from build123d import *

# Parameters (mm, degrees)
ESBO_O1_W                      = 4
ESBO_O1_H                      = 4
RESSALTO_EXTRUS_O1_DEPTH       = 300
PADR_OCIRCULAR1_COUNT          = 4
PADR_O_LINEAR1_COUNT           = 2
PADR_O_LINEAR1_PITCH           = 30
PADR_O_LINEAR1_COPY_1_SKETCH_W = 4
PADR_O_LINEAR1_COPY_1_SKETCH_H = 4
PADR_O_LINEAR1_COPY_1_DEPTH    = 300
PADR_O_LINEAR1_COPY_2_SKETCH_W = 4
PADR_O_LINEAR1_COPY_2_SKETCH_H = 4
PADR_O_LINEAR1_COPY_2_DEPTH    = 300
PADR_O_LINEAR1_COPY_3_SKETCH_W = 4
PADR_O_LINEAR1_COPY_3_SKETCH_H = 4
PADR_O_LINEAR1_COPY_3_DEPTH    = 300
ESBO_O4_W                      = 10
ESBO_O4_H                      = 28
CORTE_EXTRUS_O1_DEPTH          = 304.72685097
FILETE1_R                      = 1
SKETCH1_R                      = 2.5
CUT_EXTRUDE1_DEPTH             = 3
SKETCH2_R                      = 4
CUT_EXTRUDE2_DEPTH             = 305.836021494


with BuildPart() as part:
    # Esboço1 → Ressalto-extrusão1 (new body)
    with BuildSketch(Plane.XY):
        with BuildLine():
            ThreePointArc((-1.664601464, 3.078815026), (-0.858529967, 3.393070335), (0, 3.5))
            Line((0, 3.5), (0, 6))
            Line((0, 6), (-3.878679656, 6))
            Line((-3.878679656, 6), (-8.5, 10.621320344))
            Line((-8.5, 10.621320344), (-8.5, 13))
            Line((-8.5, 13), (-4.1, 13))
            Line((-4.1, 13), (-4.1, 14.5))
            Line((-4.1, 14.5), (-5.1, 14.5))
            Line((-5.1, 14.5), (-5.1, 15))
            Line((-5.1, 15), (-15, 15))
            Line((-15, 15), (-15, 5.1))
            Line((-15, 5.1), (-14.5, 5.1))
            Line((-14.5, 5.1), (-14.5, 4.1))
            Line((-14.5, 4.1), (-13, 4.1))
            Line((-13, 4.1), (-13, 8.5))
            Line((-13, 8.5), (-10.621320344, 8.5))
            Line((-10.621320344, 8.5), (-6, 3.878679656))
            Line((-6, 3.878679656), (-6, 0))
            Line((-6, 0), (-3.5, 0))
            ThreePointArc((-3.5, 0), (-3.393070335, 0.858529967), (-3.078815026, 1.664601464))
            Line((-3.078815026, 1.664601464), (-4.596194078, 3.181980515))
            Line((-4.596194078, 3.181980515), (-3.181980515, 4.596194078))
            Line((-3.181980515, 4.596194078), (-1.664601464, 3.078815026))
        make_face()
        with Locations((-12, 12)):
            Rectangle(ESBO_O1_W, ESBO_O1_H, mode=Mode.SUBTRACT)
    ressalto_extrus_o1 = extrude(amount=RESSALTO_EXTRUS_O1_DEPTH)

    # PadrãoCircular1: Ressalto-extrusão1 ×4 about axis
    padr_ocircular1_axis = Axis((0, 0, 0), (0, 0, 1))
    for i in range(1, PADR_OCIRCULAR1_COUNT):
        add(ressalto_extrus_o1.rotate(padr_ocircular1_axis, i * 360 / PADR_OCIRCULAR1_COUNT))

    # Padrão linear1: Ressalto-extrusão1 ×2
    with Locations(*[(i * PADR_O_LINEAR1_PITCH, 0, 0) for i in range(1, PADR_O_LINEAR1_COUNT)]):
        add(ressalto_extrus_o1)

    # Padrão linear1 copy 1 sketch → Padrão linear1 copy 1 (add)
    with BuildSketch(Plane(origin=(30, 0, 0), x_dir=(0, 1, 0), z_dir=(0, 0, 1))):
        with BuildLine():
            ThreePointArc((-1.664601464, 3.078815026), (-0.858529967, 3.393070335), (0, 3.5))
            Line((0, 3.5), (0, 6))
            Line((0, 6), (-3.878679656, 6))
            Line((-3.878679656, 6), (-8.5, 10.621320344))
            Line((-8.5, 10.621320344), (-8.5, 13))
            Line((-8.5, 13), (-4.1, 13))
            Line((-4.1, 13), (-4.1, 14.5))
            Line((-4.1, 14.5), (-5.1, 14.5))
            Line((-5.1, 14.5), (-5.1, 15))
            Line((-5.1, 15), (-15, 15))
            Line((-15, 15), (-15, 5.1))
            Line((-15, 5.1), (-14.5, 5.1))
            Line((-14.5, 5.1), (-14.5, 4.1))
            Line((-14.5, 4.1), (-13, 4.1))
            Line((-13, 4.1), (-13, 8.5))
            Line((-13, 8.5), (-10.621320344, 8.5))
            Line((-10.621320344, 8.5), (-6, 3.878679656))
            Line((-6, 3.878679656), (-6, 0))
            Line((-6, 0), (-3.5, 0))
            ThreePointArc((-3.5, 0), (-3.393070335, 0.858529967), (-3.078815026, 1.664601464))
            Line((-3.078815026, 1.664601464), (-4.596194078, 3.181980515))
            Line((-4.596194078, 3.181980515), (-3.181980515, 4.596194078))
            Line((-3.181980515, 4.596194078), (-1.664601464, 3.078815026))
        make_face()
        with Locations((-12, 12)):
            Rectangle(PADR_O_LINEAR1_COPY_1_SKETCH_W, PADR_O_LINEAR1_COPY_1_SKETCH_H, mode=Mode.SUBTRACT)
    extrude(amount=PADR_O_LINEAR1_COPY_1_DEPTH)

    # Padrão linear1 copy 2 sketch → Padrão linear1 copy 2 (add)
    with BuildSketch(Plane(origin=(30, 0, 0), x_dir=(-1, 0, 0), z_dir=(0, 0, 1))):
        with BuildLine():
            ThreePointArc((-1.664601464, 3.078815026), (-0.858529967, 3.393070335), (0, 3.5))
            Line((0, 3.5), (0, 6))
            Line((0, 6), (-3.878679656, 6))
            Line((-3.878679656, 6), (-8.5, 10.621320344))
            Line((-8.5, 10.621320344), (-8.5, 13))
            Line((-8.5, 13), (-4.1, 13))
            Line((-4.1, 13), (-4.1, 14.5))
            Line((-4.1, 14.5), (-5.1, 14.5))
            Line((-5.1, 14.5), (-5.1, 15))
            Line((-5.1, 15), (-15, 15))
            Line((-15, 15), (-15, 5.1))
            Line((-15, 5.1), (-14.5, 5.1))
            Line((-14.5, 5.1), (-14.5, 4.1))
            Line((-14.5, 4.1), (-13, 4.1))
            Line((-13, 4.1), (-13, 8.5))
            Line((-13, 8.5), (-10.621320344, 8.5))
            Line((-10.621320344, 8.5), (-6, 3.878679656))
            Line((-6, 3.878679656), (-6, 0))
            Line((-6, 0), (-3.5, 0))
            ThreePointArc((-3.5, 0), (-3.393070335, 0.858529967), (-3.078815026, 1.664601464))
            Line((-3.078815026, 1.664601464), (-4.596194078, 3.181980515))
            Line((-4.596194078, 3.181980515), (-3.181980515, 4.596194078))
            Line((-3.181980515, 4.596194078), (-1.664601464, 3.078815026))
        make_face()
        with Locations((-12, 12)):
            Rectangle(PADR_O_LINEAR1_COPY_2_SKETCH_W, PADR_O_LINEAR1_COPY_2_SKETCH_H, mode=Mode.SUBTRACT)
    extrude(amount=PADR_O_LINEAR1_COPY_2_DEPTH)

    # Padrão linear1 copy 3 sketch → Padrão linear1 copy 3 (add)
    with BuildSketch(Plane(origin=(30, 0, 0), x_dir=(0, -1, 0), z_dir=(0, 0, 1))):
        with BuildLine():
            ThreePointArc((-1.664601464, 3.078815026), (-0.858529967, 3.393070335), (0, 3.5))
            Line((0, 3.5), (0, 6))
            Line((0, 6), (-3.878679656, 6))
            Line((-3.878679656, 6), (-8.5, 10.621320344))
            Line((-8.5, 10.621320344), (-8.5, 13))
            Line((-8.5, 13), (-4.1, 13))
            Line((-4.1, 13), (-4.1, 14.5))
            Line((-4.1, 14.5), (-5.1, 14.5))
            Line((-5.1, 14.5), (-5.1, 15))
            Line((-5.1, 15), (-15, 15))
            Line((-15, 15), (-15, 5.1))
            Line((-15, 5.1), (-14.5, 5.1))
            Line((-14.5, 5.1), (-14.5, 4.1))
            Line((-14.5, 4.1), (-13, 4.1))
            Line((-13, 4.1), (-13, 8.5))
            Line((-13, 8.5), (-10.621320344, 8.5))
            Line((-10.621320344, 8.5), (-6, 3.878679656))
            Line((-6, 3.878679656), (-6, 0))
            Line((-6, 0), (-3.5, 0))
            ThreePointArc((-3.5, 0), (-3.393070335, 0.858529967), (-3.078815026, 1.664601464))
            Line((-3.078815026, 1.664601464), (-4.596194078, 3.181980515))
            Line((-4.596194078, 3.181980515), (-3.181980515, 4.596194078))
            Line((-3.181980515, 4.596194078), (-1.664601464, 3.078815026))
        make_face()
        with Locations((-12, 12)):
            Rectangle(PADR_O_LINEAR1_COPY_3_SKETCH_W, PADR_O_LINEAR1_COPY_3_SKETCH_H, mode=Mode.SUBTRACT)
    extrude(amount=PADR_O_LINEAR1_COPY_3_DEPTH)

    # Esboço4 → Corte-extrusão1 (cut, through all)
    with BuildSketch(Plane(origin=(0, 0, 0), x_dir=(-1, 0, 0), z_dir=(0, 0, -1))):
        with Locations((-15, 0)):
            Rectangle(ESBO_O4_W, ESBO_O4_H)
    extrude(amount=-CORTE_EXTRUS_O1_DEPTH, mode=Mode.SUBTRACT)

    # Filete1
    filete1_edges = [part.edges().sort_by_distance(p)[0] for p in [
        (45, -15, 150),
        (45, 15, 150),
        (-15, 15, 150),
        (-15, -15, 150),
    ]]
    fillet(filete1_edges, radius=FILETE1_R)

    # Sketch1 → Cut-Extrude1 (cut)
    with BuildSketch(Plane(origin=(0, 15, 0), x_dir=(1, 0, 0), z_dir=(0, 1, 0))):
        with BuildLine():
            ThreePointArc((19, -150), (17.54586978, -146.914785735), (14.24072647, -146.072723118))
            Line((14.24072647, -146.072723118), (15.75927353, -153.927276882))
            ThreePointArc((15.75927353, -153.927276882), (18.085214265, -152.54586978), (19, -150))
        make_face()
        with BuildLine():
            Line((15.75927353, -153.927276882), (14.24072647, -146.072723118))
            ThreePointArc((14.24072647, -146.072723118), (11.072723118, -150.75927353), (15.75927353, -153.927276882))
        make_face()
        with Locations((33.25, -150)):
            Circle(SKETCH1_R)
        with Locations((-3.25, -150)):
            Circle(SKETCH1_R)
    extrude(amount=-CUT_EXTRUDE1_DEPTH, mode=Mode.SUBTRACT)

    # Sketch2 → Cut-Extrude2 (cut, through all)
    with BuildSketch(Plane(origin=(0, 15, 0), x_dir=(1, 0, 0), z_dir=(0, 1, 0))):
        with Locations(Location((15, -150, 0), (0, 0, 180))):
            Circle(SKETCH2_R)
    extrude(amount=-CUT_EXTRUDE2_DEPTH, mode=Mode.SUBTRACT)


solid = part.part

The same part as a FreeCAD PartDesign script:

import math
import FreeCAD as App
import Part
import Sketcher
from FreeCAD import Vector
Q = App.Units.Quantity


def edges_at(feature, points):
    """Names of the edges that pass closest to the given points."""
    edges = feature.Shape.Edges
    near = lambda p: min(range(len(edges)), key=lambda i: edges[i].distToShape(Part.Vertex(*p))[0])
    return sorted({f"Edge{near(p) + 1}" for p in points})

doc = App.newDocument("Part")
body = doc.addObject("PartDesign::Body", "Body")

sketch1 = body.newObject("Sketcher::SketchObject", "Sketch")
sketch1.AttachmentSupport = (doc.getObject("XY_Plane"), [""])
sketch1.MapMode = "FlatFace"
sketch1.addGeometry([
    Part.ArcOfCircle(Part.Circle(Vector(0, 0, 0), Vector(0, 0, 1), 3.5), math.radians(90), math.radians(118)),
    Part.LineSegment(Vector(0, 3.5, 0), Vector(0, 6, 0)),
    Part.LineSegment(Vector(0, 6, 0), Vector(-3.9, 6, 0)),
    Part.LineSegment(Vector(-3.9, 6, 0), Vector(-8.5, 10.6, 0)),
    Part.LineSegment(Vector(-8.5, 10.6, 0), Vector(-8.5, 13, 0)),
    Part.LineSegment(Vector(-8.5, 13, 0), Vector(-4.1, 13, 0)),
    Part.LineSegment(Vector(-4.1, 13, 0), Vector(-4.1, 14.5, 0)),
    Part.LineSegment(Vector(-4.1, 14.5, 0), Vector(-5.1, 14.5, 0)),
    Part.LineSegment(Vector(-5.1, 14.5, 0), Vector(-5.1, 15, 0)),
    Part.LineSegment(Vector(-5.1, 15, 0), Vector(-15, 15, 0)),
    Part.LineSegment(Vector(-15, 15, 0), Vector(-15, 5.1, 0)),
    Part.LineSegment(Vector(-15, 5.1, 0), Vector(-14.5, 5.1, 0)),
    Part.LineSegment(Vector(-14.5, 5.1, 0), Vector(-14.5, 4.1, 0)),
    Part.LineSegment(Vector(-14.5, 4.1, 0), Vector(-13, 4.1, 0)),
    Part.LineSegment(Vector(-13, 4.1, 0), Vector(-13, 8.5, 0)),
    Part.LineSegment(Vector(-13, 8.5, 0), Vector(-10.6, 8.5, 0)),
    Part.LineSegment(Vector(-10.6, 8.5, 0), Vector(-6, 3.9, 0)),
    Part.LineSegment(Vector(-6, 3.9, 0), Vector(-6, 0, 0)),
    Part.LineSegment(Vector(-6, 0, 0), Vector(-3.5, 0, 0)),
    Part.ArcOfCircle(Part.Circle(Vector(0, 0, 0), Vector(0, 0, 1), 3.5), math.radians(152), math.radians(180)),
    Part.LineSegment(Vector(-3.1, 1.7, 0), Vector(-4.6, 3.2, 0)),
    Part.LineSegment(Vector(-4.6, 3.2, 0), Vector(-3.2, 4.6, 0)),
    Part.LineSegment(Vector(-3.2, 4.6, 0), Vector(-1.7, 3.1, 0)),
    Part.LineSegment(Vector(-10, 10, 0), Vector(-14, 10, 0)),
    Part.LineSegment(Vector(-14, 10, 0), Vector(-14, 14, 0)),
    Part.LineSegment(Vector(-14, 14, 0), Vector(-10, 14, 0)),
    Part.LineSegment(Vector(-10, 14, 0), Vector(-10, 10, 0)),
], False)
sketch1.addConstraint([
    Sketcher.Constraint("Coincident", 0, 1, 1, 1),
    Sketcher.Constraint("Coincident", 1, 2, 2, 1),
    Sketcher.Constraint("Coincident", 2, 2, 3, 1),
    Sketcher.Constraint("Coincident", 3, 2, 4, 1),
    Sketcher.Constraint("Coincident", 4, 2, 5, 1),
    Sketcher.Constraint("Coincident", 5, 2, 6, 1),
    Sketcher.Constraint("Coincident", 6, 2, 7, 1),
    Sketcher.Constraint("Coincident", 7, 2, 8, 1),
    Sketcher.Constraint("Coincident", 8, 2, 9, 1),
    Sketcher.Constraint("Coincident", 9, 2, 10, 1),
    Sketcher.Constraint("Coincident", 10, 2, 11, 1),
    Sketcher.Constraint("Coincident", 11, 2, 12, 1),
    Sketcher.Constraint("Coincident", 12, 2, 13, 1),
    Sketcher.Constraint("Coincident", 13, 2, 14, 1),
    Sketcher.Constraint("Coincident", 14, 2, 15, 1),
    Sketcher.Constraint("Coincident", 15, 2, 16, 1),
    Sketcher.Constraint("Coincident", 16, 2, 17, 1),
    Sketcher.Constraint("Coincident", 17, 2, 18, 1),
    Sketcher.Constraint("Coincident", 18, 2, 19, 2),
    Sketcher.Constraint("Coincident", 19, 1, 20, 1),
    Sketcher.Constraint("Coincident", 20, 2, 21, 1),
    Sketcher.Constraint("Coincident", 21, 2, 22, 1),
    Sketcher.Constraint("Coincident", 22, 2, 0, 2),
    Sketcher.Constraint("Coincident", 23, 2, 24, 1),
    Sketcher.Constraint("Coincident", 24, 2, 25, 1),
    Sketcher.Constraint("Coincident", 25, 2, 26, 1),
    Sketcher.Constraint("Coincident", 26, 2, 23, 1),
    Sketcher.Constraint("Vertical", 1),
    Sketcher.Constraint("Horizontal", 2),
    Sketcher.Constraint("Vertical", 4),
    Sketcher.Constraint("Horizontal", 5),
    Sketcher.Constraint("Vertical", 6),
    Sketcher.Constraint("Horizontal", 7),
    Sketcher.Constraint("Vertical", 8),
    Sketcher.Constraint("Horizontal", 9),
    Sketcher.Constraint("Vertical", 10),
    Sketcher.Constraint("Horizontal", 11),
    Sketcher.Constraint("Vertical", 12),
    Sketcher.Constraint("Horizontal", 13),
    Sketcher.Constraint("Vertical", 14),
    Sketcher.Constraint("Horizontal", 15),
    Sketcher.Constraint("Vertical", 17),
    Sketcher.Constraint("Horizontal", 18),
    Sketcher.Constraint("Horizontal", 23),
    Sketcher.Constraint("Vertical", 24),
    Sketcher.Constraint("Horizontal", 25),
    Sketcher.Constraint("Vertical", 26),
    Sketcher.Constraint("Coincident", 0, 3, -1, 1),
    Sketcher.Constraint("Coincident", 19, 3, -1, 1),
    Sketcher.Constraint("Equal", 0, 19),
    Sketcher.Constraint("PointOnObject", 0, 1, -2),
    Sketcher.Constraint("PointOnObject", 17, 2, -1),
    Sketcher.Constraint("Parallel", 3, 16),
    Sketcher.Constraint("Parallel", 16, 20),
    Sketcher.Constraint("Perpendicular", 20, 21),
    Sketcher.Constraint("Perpendicular", 21, 22),
    Sketcher.Constraint("Equal", 18, 1),
    Sketcher.Constraint("Equal", 15, 4),
    Sketcher.Constraint("Equal", 13, 6),
    Sketcher.Constraint("Equal", 11, 8),
    Sketcher.Constraint("Equal", 9, 10),
    Sketcher.Constraint("Equal", 7, 12),
    Sketcher.Constraint("Equal", 5, 14),
    Sketcher.Constraint("Equal", 2, 17),
    Sketcher.Constraint("Equal", 25, 24),
    Sketcher.Constraint("Equal", 20, 22),
    Sketcher.Constraint("Radius", 0, 3.5),
    Sketcher.Constraint("DistanceX", 7, 2, 7, 1, 1.0),
    Sketcher.Constraint("DistanceX", 23, 2, 23, 1, 4.0),
    Sketcher.Constraint("Angle", 3, Q("135 deg")),
    Sketcher.Constraint("Distance", 21, 2.0),
    Sketcher.Constraint("DistanceX", 5, 1, 5, 2, 4.4),
    Sketcher.Constraint("DistanceX", 9, 2, 9, 1, 9.9),
    Sketcher.Constraint("DistanceX", 11, 1, 11, 2, 0.5),
    Sketcher.Constraint("DistanceX", 13, 1, 13, 2, 1.5),
    Sketcher.Constraint("DistanceX", 18, 1, 18, 2, 2.5),
    Sketcher.Constraint("DistanceY", -1, 1, 4, 2, 13.0),
    Sketcher.Constraint("DistanceX", 23, 2, -1, 1, 14.0),
    Sketcher.Constraint("DistanceY", -1, 1, 23, 2, 10.0),
    Sketcher.Constraint("Distance", 20, 2.145898),
    Sketcher.Constraint("DistanceX", 2, 2, 2, 1, 3.87868),
])
pad1 = body.newObject("PartDesign::Pad", "Pad")
pad1.Profile = sketch1
pad1.Length = 300
doc.recompute()

polarpattern = body.newObject("PartDesign::PolarPattern", "PolarPattern")
polarpattern.Originals = [pad1]
polarpattern.Axis = (doc.getObject("Z_Axis"), [""])
polarpattern.Angle = 360
polarpattern.Occurrences = 4
body.Tip = polarpattern
doc.recompute()

linearpattern = body.newObject("PartDesign::LinearPattern", "LinearPattern")
linearpattern.Originals = [pad1]
linearpattern.Direction = (doc.getObject("X_Axis"), [""])
linearpattern.Mode = "offset"
linearpattern.Offset = 30
linearpattern.Occurrences = 2
body.Tip = linearpattern

sketch2 = body.newObject("Sketcher::SketchObject", "Sketch001")
sketch2.AttachmentSupport = (doc.getObject("XY_Plane"), [""])
sketch2.MapMode = "FlatFace"
sketch2.addGeometry([
    Part.ArcOfCircle(Part.Circle(Vector(30, 0, 0), Vector(0, 0, 1), 3.5), math.radians(180), math.radians(208)),
    Part.LineSegment(Vector(26.5, 0, 0), Vector(24, 0, 0)),
    Part.LineSegment(Vector(24, 0, 0), Vector(24, -3.9, 0)),
    Part.LineSegment(Vector(24, -3.9, 0), Vector(19.4, -8.5, 0)),
    Part.LineSegment(Vector(19.4, -8.5, 0), Vector(17, -8.5, 0)),
    Part.LineSegment(Vector(17, -8.5, 0), Vector(17, -4.1, 0)),
    Part.LineSegment(Vector(17, -4.1, 0), Vector(15.5, -4.1, 0)),
    Part.LineSegment(Vector(15.5, -4.1, 0), Vector(15.5, -5.1, 0)),
    Part.LineSegment(Vector(15.5, -5.1, 0), Vector(15, -5.1, 0)),
    Part.LineSegment(Vector(15, -5.1, 0), Vector(15, -15, 0)),
    Part.LineSegment(Vector(15, -15, 0), Vector(24.9, -15, 0)),
    Part.LineSegment(Vector(24.9, -15, 0), Vector(24.9, -14.5, 0)),
    Part.LineSegment(Vector(24.9, -14.5, 0), Vector(25.9, -14.5, 0)),
    Part.LineSegment(Vector(25.9, -14.5, 0), Vector(25.9, -13, 0)),
    Part.LineSegment(Vector(25.9, -13, 0), Vector(21.5, -13, 0)),
    Part.LineSegment(Vector(21.5, -13, 0), Vector(21.5, -10.6, 0)),
    Part.LineSegment(Vector(21.5, -10.6, 0), Vector(26.1, -6, 0)),
    Part.LineSegment(Vector(26.1, -6, 0), Vector(30, -6, 0)),
    Part.LineSegment(Vector(30, -6, 0), Vector(30, -3.5, 0)),
    Part.ArcOfCircle(Part.Circle(Vector(30, 0, 0), Vector(0, 0, 1), 3.5), math.radians(-118), math.radians(-90)),
    Part.LineSegment(Vector(28.3, -3.1, 0), Vector(26.8, -4.6, 0)),
    Part.LineSegment(Vector(26.8, -4.6, 0), Vector(25.4, -3.2, 0)),
    Part.LineSegment(Vector(25.4, -3.2, 0), Vector(26.9, -1.7, 0)),
    Part.LineSegment(Vector(20, -10, 0), Vector(20, -14, 0)),
    Part.LineSegment(Vector(20, -14, 0), Vector(16, -14, 0)),
    Part.LineSegment(Vector(16, -14, 0), Vector(16, -10, 0)),
    Part.LineSegment(Vector(16, -10, 0), Vector(20, -10, 0)),
], False)
sketch2.addConstraint([
    Sketcher.Constraint("Coincident", 0, 1, 1, 1),
    Sketcher.Constraint("Coincident", 1, 2, 2, 1),
    Sketcher.Constraint("Coincident", 2, 2, 3, 1),
    Sketcher.Constraint("Coincident", 3, 2, 4, 1),
    Sketcher.Constraint("Coincident", 4, 2, 5, 1),
    Sketcher.Constraint("Coincident", 5, 2, 6, 1),
    Sketcher.Constraint("Coincident", 6, 2, 7, 1),
    Sketcher.Constraint("Coincident", 7, 2, 8, 1),
    Sketcher.Constraint("Coincident", 8, 2, 9, 1),
    Sketcher.Constraint("Coincident", 9, 2, 10, 1),
    Sketcher.Constraint("Coincident", 10, 2, 11, 1),
    Sketcher.Constraint("Coincident", 11, 2, 12, 1),
    Sketcher.Constraint("Coincident", 12, 2, 13, 1),
    Sketcher.Constraint("Coincident", 13, 2, 14, 1),
    Sketcher.Constraint("Coincident", 14, 2, 15, 1),
    Sketcher.Constraint("Coincident", 15, 2, 16, 1),
    Sketcher.Constraint("Coincident", 16, 2, 17, 1),
    Sketcher.Constraint("Coincident", 17, 2, 18, 1),
    Sketcher.Constraint("Coincident", 18, 2, 19, 2),
    Sketcher.Constraint("Coincident", 19, 1, 20, 1),
    Sketcher.Constraint("Coincident", 20, 2, 21, 1),
    Sketcher.Constraint("Coincident", 21, 2, 22, 1),
    Sketcher.Constraint("Coincident", 22, 2, 0, 2),
    Sketcher.Constraint("Coincident", 23, 2, 24, 1),
    Sketcher.Constraint("Coincident", 24, 2, 25, 1),
    Sketcher.Constraint("Coincident", 25, 2, 26, 1),
    Sketcher.Constraint("Coincident", 26, 2, 23, 1),
    Sketcher.Constraint("Horizontal", 1),
    Sketcher.Constraint("Vertical", 2),
    Sketcher.Constraint("Horizontal", 4),
    Sketcher.Constraint("Vertical", 5),
    Sketcher.Constraint("Horizontal", 6),
    Sketcher.Constraint("Vertical", 7),
    Sketcher.Constraint("Horizontal", 8),
    Sketcher.Constraint("Vertical", 9),
    Sketcher.Constraint("Horizontal", 10),
    Sketcher.Constraint("Vertical", 11),
    Sketcher.Constraint("Horizontal", 12),
    Sketcher.Constraint("Vertical", 13),
    Sketcher.Constraint("Horizontal", 14),
    Sketcher.Constraint("Vertical", 15),
    Sketcher.Constraint("Horizontal", 17),
    Sketcher.Constraint("Vertical", 18),
    Sketcher.Constraint("Vertical", 23),
    Sketcher.Constraint("Horizontal", 24),
    Sketcher.Constraint("Vertical", 25),
    Sketcher.Constraint("Horizontal", 26),
    Sketcher.Constraint("Coincident", 19, 3, 0, 3),
    Sketcher.Constraint("Equal", 0, 19),
    Sketcher.Constraint("PointOnObject", 0, 3, -1),
    Sketcher.Constraint("PointOnObject", 0, 1, -1),
    Sketcher.Constraint("Parallel", 3, 16),
    Sketcher.Constraint("Parallel", 16, 20),
    Sketcher.Constraint("Perpendicular", 20, 21),
    Sketcher.Constraint("Perpendicular", 21, 22),
    Sketcher.Constraint("Vertical", 19, 3, 17, 2),
    Sketcher.Constraint("Equal", 17, 2),
    Sketcher.Constraint("Equal", 14, 5),
    Sketcher.Constraint("Equal", 12, 7),
    Sketcher.Constraint("Equal", 10, 9),
    Sketcher.Constraint("Equal", 8, 11),
    Sketcher.Constraint("Equal", 6, 13),
    Sketcher.Constraint("Equal", 4, 15),
    Sketcher.Constraint("Equal", 1, 18),
    Sketcher.Constraint("Equal", 26, 23),
    Sketcher.Constraint("Equal", 20, 22),
    Sketcher.Constraint("Radius", 0, 3.5),
    Sketcher.Constraint("DistanceX", 12, 1, 12, 2, 1.0),
    Sketcher.Constraint("DistanceX", 24, 2, 24, 1, 4.0),
    Sketcher.Constraint("Angle", 3, Q("-135 deg")),
    Sketcher.Constraint("Distance", 21, 2.0),
    Sketcher.Constraint("DistanceX", 1, 2, 1, 1, 2.5),
    Sketcher.Constraint("DistanceX", 6, 2, 6, 1, 1.5),
    Sketcher.Constraint("DistanceX", 8, 2, 8, 1, 0.5),
    Sketcher.Constraint("DistanceX", 10, 1, 10, 2, 9.9),
    Sketcher.Constraint("DistanceX", 14, 2, 14, 1, 4.4),
    Sketcher.Constraint("DistanceX", -1, 1, 0, 3, 30.0),
    Sketcher.Constraint("DistanceX", -1, 1, 4, 2, 17.0),
    Sketcher.Constraint("DistanceX", -1, 1, 23, 2, 20.0),
    Sketcher.Constraint("DistanceY", 23, 2, -1, 1, 14.0),
    Sketcher.Constraint("Distance", 20, 2.145898),
    Sketcher.Constraint("DistanceX", 4, 2, 4, 1, 2.37868),
])
pad2 = body.newObject("PartDesign::Pad", "Pad001")
pad2.Profile = sketch2
pad2.Length = 300

sketch3 = body.newObject("Sketcher::SketchObject", "Sketch002")
sketch3.AttachmentSupport = (doc.getObject("XY_Plane"), [""])
sketch3.MapMode = "FlatFace"
sketch3.addGeometry([
    Part.ArcOfCircle(Part.Circle(Vector(30, 0, 0), Vector(0, 0, 1), 3.5), math.radians(-90), math.radians(-62)),
    Part.LineSegment(Vector(30, -3.5, 0), Vector(30, -6, 0)),
    Part.LineSegment(Vector(30, -6, 0), Vector(33.9, -6, 0)),
    Part.LineSegment(Vector(33.9, -6, 0), Vector(38.5, -10.6, 0)),
    Part.LineSegment(Vector(38.5, -10.6, 0), Vector(38.5, -13, 0)),
    Part.LineSegment(Vector(38.5, -13, 0), Vector(34.1, -13, 0)),
    Part.LineSegment(Vector(34.1, -13, 0), Vector(34.1, -14.5, 0)),
    Part.LineSegment(Vector(34.1, -14.5, 0), Vector(35.1, -14.5, 0)),
    Part.LineSegment(Vector(35.1, -14.5, 0), Vector(35.1, -15, 0)),
    Part.LineSegment(Vector(35.1, -15, 0), Vector(45, -15, 0)),
    Part.LineSegment(Vector(45, -15, 0), Vector(45, -5.1, 0)),
    Part.LineSegment(Vector(45, -5.1, 0), Vector(44.5, -5.1, 0)),
    Part.LineSegment(Vector(44.5, -5.1, 0), Vector(44.5, -4.1, 0)),
    Part.LineSegment(Vector(44.5, -4.1, 0), Vector(43, -4.1, 0)),
    Part.LineSegment(Vector(43, -4.1, 0), Vector(43, -8.5, 0)),
    Part.LineSegment(Vector(43, -8.5, 0), Vector(40.6, -8.5, 0)),
    Part.LineSegment(Vector(40.6, -8.5, 0), Vector(36, -3.9, 0)),
    Part.LineSegment(Vector(36, -3.9, 0), Vector(36, 0, 0)),
    Part.LineSegment(Vector(36, 0, 0), Vector(33.5, 0, 0)),
    Part.ArcOfCircle(Part.Circle(Vector(30, 0, 0), Vector(0, 0, 1), 3.5), math.radians(-28), math.radians(0)),
    Part.LineSegment(Vector(33.1, -1.7, 0), Vector(34.6, -3.2, 0)),
    Part.LineSegment(Vector(34.6, -3.2, 0), Vector(33.2, -4.6, 0)),
    Part.LineSegment(Vector(33.2, -4.6, 0), Vector(31.7, -3.1, 0)),
    Part.LineSegment(Vector(40, -10, 0), Vector(44, -10, 0)),
    Part.LineSegment(Vector(44, -10, 0), Vector(44, -14, 0)),
    Part.LineSegment(Vector(44, -14, 0), Vector(40, -14, 0)),
    Part.LineSegment(Vector(40, -14, 0), Vector(40, -10, 0)),
], False)
sketch3.addConstraint([
    Sketcher.Constraint("Coincident", 0, 1, 1, 1),
    Sketcher.Constraint("Coincident", 1, 2, 2, 1),
    Sketcher.Constraint("Coincident", 2, 2, 3, 1),
    Sketcher.Constraint("Coincident", 3, 2, 4, 1),
    Sketcher.Constraint("Coincident", 4, 2, 5, 1),
    Sketcher.Constraint("Coincident", 5, 2, 6, 1),
    Sketcher.Constraint("Coincident", 6, 2, 7, 1),
    Sketcher.Constraint("Coincident", 7, 2, 8, 1),
    Sketcher.Constraint("Coincident", 8, 2, 9, 1),
    Sketcher.Constraint("Coincident", 9, 2, 10, 1),
    Sketcher.Constraint("Coincident", 10, 2, 11, 1),
    Sketcher.Constraint("Coincident", 11, 2, 12, 1),
    Sketcher.Constraint("Coincident", 12, 2, 13, 1),
    Sketcher.Constraint("Coincident", 13, 2, 14, 1),
    Sketcher.Constraint("Coincident", 14, 2, 15, 1),
    Sketcher.Constraint("Coincident", 15, 2, 16, 1),
    Sketcher.Constraint("Coincident", 16, 2, 17, 1),
    Sketcher.Constraint("Coincident", 17, 2, 18, 1),
    Sketcher.Constraint("Coincident", 18, 2, 19, 2),
    Sketcher.Constraint("Coincident", 19, 1, 20, 1),
    Sketcher.Constraint("Coincident", 20, 2, 21, 1),
    Sketcher.Constraint("Coincident", 21, 2, 22, 1),
    Sketcher.Constraint("Coincident", 22, 2, 0, 2),
    Sketcher.Constraint("Coincident", 23, 2, 24, 1),
    Sketcher.Constraint("Coincident", 24, 2, 25, 1),
    Sketcher.Constraint("Coincident", 25, 2, 26, 1),
    Sketcher.Constraint("Coincident", 26, 2, 23, 1),
    Sketcher.Constraint("Vertical", 1),
    Sketcher.Constraint("Horizontal", 2),
    Sketcher.Constraint("Vertical", 4),
    Sketcher.Constraint("Horizontal", 5),
    Sketcher.Constraint("Vertical", 6),
    Sketcher.Constraint("Horizontal", 7),
    Sketcher.Constraint("Vertical", 8),
    Sketcher.Constraint("Horizontal", 9),
    Sketcher.Constraint("Vertical", 10),
    Sketcher.Constraint("Horizontal", 11),
    Sketcher.Constraint("Vertical", 12),
    Sketcher.Constraint("Horizontal", 13),
    Sketcher.Constraint("Vertical", 14),
    Sketcher.Constraint("Horizontal", 15),
    Sketcher.Constraint("Vertical", 17),
    Sketcher.Constraint("Horizontal", 18),
    Sketcher.Constraint("Horizontal", 23),
    Sketcher.Constraint("Vertical", 24),
    Sketcher.Constraint("Horizontal", 25),
    Sketcher.Constraint("Vertical", 26),
    Sketcher.Constraint("Coincident", 19, 3, 0, 3),
    Sketcher.Constraint("Equal", 0, 19),
    Sketcher.Constraint("PointOnObject", 0, 3, -1),
    Sketcher.Constraint("PointOnObject", 17, 2, -1),
    Sketcher.Constraint("Parallel", 3, 16),
    Sketcher.Constraint("Parallel", 16, 20),
    Sketcher.Constraint("Perpendicular", 20, 21),
    Sketcher.Constraint("Perpendicular", 21, 22),
    Sketcher.Constraint("Vertical", 19, 3, 0, 1),
    Sketcher.Constraint("Equal", 18, 1),
    Sketcher.Constraint("Equal", 15, 4),
    Sketcher.Constraint("Equal", 13, 6),
    Sketcher.Constraint("Equal", 11, 8),
    Sketcher.Constraint("Equal", 9, 10),
    Sketcher.Constraint("Equal", 7, 12),
    Sketcher.Constraint("Equal", 5, 14),
    Sketcher.Constraint("Equal", 2, 17),
    Sketcher.Constraint("Equal", 25, 24),
    Sketcher.Constraint("Equal", 20, 22),
    Sketcher.Constraint("Radius", 0, 3.5),
    Sketcher.Constraint("DistanceX", 7, 1, 7, 2, 1.0),
    Sketcher.Constraint("DistanceX", 23, 1, 23, 2, 4.0),
    Sketcher.Constraint("Angle", 3, Q("-45 deg")),
    Sketcher.Constraint("Distance", 21, 2.0),
    Sketcher.Constraint("DistanceX", 5, 2, 5, 1, 4.4),
    Sketcher.Constraint("DistanceX", 9, 1, 9, 2, 9.9),
    Sketcher.Constraint("DistanceX", 11, 2, 11, 1, 0.5),
    Sketcher.Constraint("DistanceX", 13, 2, 13, 1, 1.5),
    Sketcher.Constraint("DistanceX", 18, 2, 18, 1, 2.5),
    Sketcher.Constraint("DistanceX", -1, 1, 0, 3, 30.0),
    Sketcher.Constraint("DistanceY", 4, 2, -1, 1, 13.0),
    Sketcher.Constraint("DistanceX", -1, 1, 23, 2, 44.0),
    Sketcher.Constraint("DistanceY", 23, 2, -1, 1, 10.0),
    Sketcher.Constraint("Distance", 20, 2.145898),
    Sketcher.Constraint("DistanceX", 2, 1, 2, 2, 3.87868),
])
pad3 = body.newObject("PartDesign::Pad", "Pad002")
pad3.Profile = sketch3
pad3.Length = 300

sketch4 = body.newObject("Sketcher::SketchObject", "Sketch003")
sketch4.AttachmentSupport = (doc.getObject("XY_Plane"), [""])
sketch4.MapMode = "FlatFace"
sketch4.addGeometry([
    Part.ArcOfCircle(Part.Circle(Vector(30, 0, 0), Vector(0, 0, 1), 3.5), math.radians(0), math.radians(28)),
    Part.LineSegment(Vector(33.5, 0, 0), Vector(36, 0, 0)),
    Part.LineSegment(Vector(36, 0, 0), Vector(36, 3.9, 0)),
    Part.LineSegment(Vector(36, 3.9, 0), Vector(40.6, 8.5, 0)),
    Part.LineSegment(Vector(40.6, 8.5, 0), Vector(43, 8.5, 0)),
    Part.LineSegment(Vector(43, 8.5, 0), Vector(43, 4.1, 0)),
    Part.LineSegment(Vector(43, 4.1, 0), Vector(44.5, 4.1, 0)),
    Part.LineSegment(Vector(44.5, 4.1, 0), Vector(44.5, 5.1, 0)),
    Part.LineSegment(Vector(44.5, 5.1, 0), Vector(45, 5.1, 0)),
    Part.LineSegment(Vector(45, 5.1, 0), Vector(45, 15, 0)),
    Part.LineSegment(Vector(45, 15, 0), Vector(35.1, 15, 0)),
    Part.LineSegment(Vector(35.1, 15, 0), Vector(35.1, 14.5, 0)),
    Part.LineSegment(Vector(35.1, 14.5, 0), Vector(34.1, 14.5, 0)),
    Part.LineSegment(Vector(34.1, 14.5, 0), Vector(34.1, 13, 0)),
    Part.LineSegment(Vector(34.1, 13, 0), Vector(38.5, 13, 0)),
    Part.LineSegment(Vector(38.5, 13, 0), Vector(38.5, 10.6, 0)),
    Part.LineSegment(Vector(38.5, 10.6, 0), Vector(33.9, 6, 0)),
    Part.LineSegment(Vector(33.9, 6, 0), Vector(30, 6, 0)),
    Part.LineSegment(Vector(30, 6, 0), Vector(30, 3.5, 0)),
    Part.ArcOfCircle(Part.Circle(Vector(30, 0, 0), Vector(0, 0, 1), 3.5), math.radians(62), math.radians(90)),
    Part.LineSegment(Vector(31.7, 3.1, 0), Vector(33.2, 4.6, 0)),
    Part.LineSegment(Vector(33.2, 4.6, 0), Vector(34.6, 3.2, 0)),
    Part.LineSegment(Vector(34.6, 3.2, 0), Vector(33.1, 1.7, 0)),
    Part.LineSegment(Vector(40, 10, 0), Vector(40, 14, 0)),
    Part.LineSegment(Vector(40, 14, 0), Vector(44, 14, 0)),
    Part.LineSegment(Vector(44, 14, 0), Vector(44, 10, 0)),
    Part.LineSegment(Vector(44, 10, 0), Vector(40, 10, 0)),
], False)
sketch4.addConstraint([
    Sketcher.Constraint("Coincident", 0, 1, 1, 1),
    Sketcher.Constraint("Coincident", 1, 2, 2, 1),
    Sketcher.Constraint("Coincident", 2, 2, 3, 1),
    Sketcher.Constraint("Coincident", 3, 2, 4, 1),
    Sketcher.Constraint("Coincident", 4, 2, 5, 1),
    Sketcher.Constraint("Coincident", 5, 2, 6, 1),
    Sketcher.Constraint("Coincident", 6, 2, 7, 1),
    Sketcher.Constraint("Coincident", 7, 2, 8, 1),
    Sketcher.Constraint("Coincident", 8, 2, 9, 1),
    Sketcher.Constraint("Coincident", 9, 2, 10, 1),
    Sketcher.Constraint("Coincident", 10, 2, 11, 1),
    Sketcher.Constraint("Coincident", 11, 2, 12, 1),
    Sketcher.Constraint("Coincident", 12, 2, 13, 1),
    Sketcher.Constraint("Coincident", 13, 2, 14, 1),
    Sketcher.Constraint("Coincident", 14, 2, 15, 1),
    Sketcher.Constraint("Coincident", 15, 2, 16, 1),
    Sketcher.Constraint("Coincident", 16, 2, 17, 1),
    Sketcher.Constraint("Coincident", 17, 2, 18, 1),
    Sketcher.Constraint("Coincident", 18, 2, 19, 2),
    Sketcher.Constraint("Coincident", 19, 1, 20, 1),
    Sketcher.Constraint("Coincident", 20, 2, 21, 1),
    Sketcher.Constraint("Coincident", 21, 2, 22, 1),
    Sketcher.Constraint("Coincident", 22, 2, 0, 2),
    Sketcher.Constraint("Coincident", 23, 2, 24, 1),
    Sketcher.Constraint("Coincident", 24, 2, 25, 1),
    Sketcher.Constraint("Coincident", 25, 2, 26, 1),
    Sketcher.Constraint("Coincident", 26, 2, 23, 1),
    Sketcher.Constraint("Horizontal", 1),
    Sketcher.Constraint("Vertical", 2),
    Sketcher.Constraint("Horizontal", 4),
    Sketcher.Constraint("Vertical", 5),
    Sketcher.Constraint("Horizontal", 6),
    Sketcher.Constraint("Vertical", 7),
    Sketcher.Constraint("Horizontal", 8),
    Sketcher.Constraint("Vertical", 9),
    Sketcher.Constraint("Horizontal", 10),
    Sketcher.Constraint("Vertical", 11),
    Sketcher.Constraint("Horizontal", 12),
    Sketcher.Constraint("Vertical", 13),
    Sketcher.Constraint("Horizontal", 14),
    Sketcher.Constraint("Vertical", 15),
    Sketcher.Constraint("Horizontal", 17),
    Sketcher.Constraint("Vertical", 18),
    Sketcher.Constraint("Vertical", 23),
    Sketcher.Constraint("Horizontal", 24),
    Sketcher.Constraint("Vertical", 25),
    Sketcher.Constraint("Horizontal", 26),
    Sketcher.Constraint("Coincident", 19, 3, 0, 3),
    Sketcher.Constraint("Equal", 0, 19),
    Sketcher.Constraint("PointOnObject", 0, 3, -1),
    Sketcher.Constraint("PointOnObject", 0, 1, -1),
    Sketcher.Constraint("Parallel", 3, 16),
    Sketcher.Constraint("Parallel", 16, 20),
    Sketcher.Constraint("Perpendicular", 20, 21),
    Sketcher.Constraint("Perpendicular", 21, 22),
    Sketcher.Constraint("Vertical", 19, 3, 17, 2),
    Sketcher.Constraint("Equal", 17, 2),
    Sketcher.Constraint("Equal", 14, 5),
    Sketcher.Constraint("Equal", 12, 7),
    Sketcher.Constraint("Equal", 10, 9),
    Sketcher.Constraint("Equal", 8, 11),
    Sketcher.Constraint("Equal", 6, 13),
    Sketcher.Constraint("Equal", 4, 15),
    Sketcher.Constraint("Equal", 1, 18),
    Sketcher.Constraint("Equal", 26, 23),
    Sketcher.Constraint("Equal", 20, 22),
    Sketcher.Constraint("Radius", 0, 3.5),
    Sketcher.Constraint("DistanceX", 12, 2, 12, 1, 1.0),
    Sketcher.Constraint("DistanceX", 24, 1, 24, 2, 4.0),
    Sketcher.Constraint("Angle", 3, Q("45 deg")),
    Sketcher.Constraint("Distance", 21, 2.0),
    Sketcher.Constraint("DistanceX", 1, 1, 1, 2, 2.5),
    Sketcher.Constraint("DistanceX", 6, 1, 6, 2, 1.5),
    Sketcher.Constraint("DistanceX", 8, 1, 8, 2, 0.5),
    Sketcher.Constraint("DistanceX", 10, 2, 10, 1, 9.9),
    Sketcher.Constraint("DistanceX", 14, 1, 14, 2, 4.4),
    Sketcher.Constraint("DistanceX", -1, 1, 0, 3, 30.0),
    Sketcher.Constraint("DistanceX", -1, 1, 4, 2, 43.0),
    Sketcher.Constraint("DistanceX", -1, 1, 23, 2, 40.0),
    Sketcher.Constraint("DistanceY", -1, 1, 23, 2, 14.0),
    Sketcher.Constraint("Distance", 20, 2.145898),
    Sketcher.Constraint("DistanceX", 4, 1, 4, 2, 2.37868),
])
pad4 = body.newObject("PartDesign::Pad", "Pad003")
pad4.Profile = sketch4
pad4.Length = 300

sketch5 = body.newObject("Sketcher::SketchObject", "Sketch004")
sketch5.AttachmentSupport = (doc.getObject("XY_Plane"), [""])
sketch5.MapMode = "FlatFace"
sketch5.addGeometry([
    Part.LineSegment(Vector(20, 14, 0), Vector(20, -14, 0)),
    Part.LineSegment(Vector(20, -14, 0), Vector(10, -14, 0)),
    Part.LineSegment(Vector(10, -14, 0), Vector(10, 14, 0)),
    Part.LineSegment(Vector(10, 14, 0), Vector(20, 14, 0)),
], False)
sketch5.addConstraint([
    Sketcher.Constraint("Coincident", 0, 2, 1, 1),
    Sketcher.Constraint("Coincident", 1, 2, 2, 1),
    Sketcher.Constraint("Coincident", 2, 2, 3, 1),
    Sketcher.Constraint("Coincident", 3, 2, 0, 1),
    Sketcher.Constraint("Vertical", 0),
    Sketcher.Constraint("Horizontal", 1),
    Sketcher.Constraint("Vertical", 2),
    Sketcher.Constraint("Horizontal", 3),
    Sketcher.Constraint("DistanceX", 1, 2, 1, 1, 10.0),
    Sketcher.Constraint("DistanceY", 0, 2, 0, 1, 28.0),
    Sketcher.Constraint("DistanceX", -1, 1, 0, 2, 20.0),
    Sketcher.Constraint("DistanceY", 0, 2, -1, 1, 14.0),
])
pocket1 = body.newObject("PartDesign::Pocket", "Pocket")
pocket1.Profile = sketch5
pocket1.Type = "ThroughAll"
pocket1.Reversed = True
doc.recompute()

fillet = body.newObject("PartDesign::Fillet", "Fillet")
fillet.Base = (pocket1, edges_at(pocket1, [
    (45, -15, 150),
    (45, 15, 150),
    (-15, 15, 150),
    (-15, -15, 150),
]))
fillet.Radius = 1

sketch6 = body.newObject("Sketcher::SketchObject", "Sketch005")
sketch6.AttachmentSupport = (doc.getObject("XZ_Plane"), [""])
sketch6.MapMode = "FlatFace"
sketch6.AttachmentOffset = App.Placement(Vector(0, 0, -15), App.Rotation())
sketch6.addGeometry([
    Part.ArcOfCircle(Part.Circle(Vector(15, 150, 0), Vector(0, 0, 1), 4), math.radians(-101), math.radians(0)),
    Part.ArcOfCircle(Part.Circle(Vector(15, 150, 0), Vector(0, 0, 1), 4), math.radians(79), math.radians(259)),
    Part.ArcOfCircle(Part.Circle(Vector(15, 150, 0), Vector(0, 0, 1), 4), math.radians(0), math.radians(79)),
    Part.Circle(Vector(33.2, 150, 0), Vector(0, 0, 1), 2.5),
    Part.Circle(Vector(-3.2, 150, 0), Vector(0, 0, 1), 2.5),
], False)
sketch6.addConstraint([
    Sketcher.Constraint("Tangent", 0, 1, 1, 2),
    Sketcher.Constraint("Tangent", 1, 1, 2, 2),
    Sketcher.Constraint("Tangent", 2, 1, 0, 2),
    Sketcher.Constraint("Equal", 3, 4),
    Sketcher.Constraint("Horizontal", 2, 3, 3, 3),
    Sketcher.Constraint("Horizontal", 3, 3, 4, 3),
    Sketcher.Constraint("Horizontal", 4, 3, 2, 1),
    Sketcher.Constraint("Diameter", 3, 5.0),
    Sketcher.Constraint("Radius", 0, 4.0),
    Sketcher.Constraint("DistanceX", -1, 1, 0, 3, 15.0),
    Sketcher.Constraint("DistanceY", -1, 1, 0, 3, 150.0),
    Sketcher.Constraint("DistanceX", 4, 3, 3, 3, 36.5),
    Sketcher.Constraint("DistanceX", -1, 1, 3, 3, 33.25),
    Sketcher.Constraint("DistanceX", -1, 1, 0, 1, 14.240726),
    Sketcher.Constraint("DistanceX", -1, 1, 1, 1, 15.759274),
])
pocket2 = body.newObject("PartDesign::Pocket", "Pocket001")
pocket2.Profile = sketch6
pocket2.Length = 3
pocket2.Reversed = True

sketch7 = body.newObject("Sketcher::SketchObject", "Sketch006")
sketch7.AttachmentSupport = (doc.getObject("XZ_Plane"), [""])
sketch7.MapMode = "FlatFace"
sketch7.AttachmentOffset = App.Placement(Vector(0, 0, -15), App.Rotation())
sketch7.addGeometry(Part.Circle(Vector(15, 150, 0), Vector(0, 0, 1), 4), False)
sketch7.addConstraint([
    Sketcher.Constraint("Diameter", 0, 8.0),
    Sketcher.Constraint("DistanceX", -1, 1, 0, 3, 15.0),
    Sketcher.Constraint("DistanceY", -1, 1, 0, 3, 150.0),
])
pocket3 = body.newObject("PartDesign::Pocket", "Pocket002")
pocket3.Profile = sketch7
pocket3.Type = "ThroughAll"
pocket3.Reversed = True

doc.recompute()
